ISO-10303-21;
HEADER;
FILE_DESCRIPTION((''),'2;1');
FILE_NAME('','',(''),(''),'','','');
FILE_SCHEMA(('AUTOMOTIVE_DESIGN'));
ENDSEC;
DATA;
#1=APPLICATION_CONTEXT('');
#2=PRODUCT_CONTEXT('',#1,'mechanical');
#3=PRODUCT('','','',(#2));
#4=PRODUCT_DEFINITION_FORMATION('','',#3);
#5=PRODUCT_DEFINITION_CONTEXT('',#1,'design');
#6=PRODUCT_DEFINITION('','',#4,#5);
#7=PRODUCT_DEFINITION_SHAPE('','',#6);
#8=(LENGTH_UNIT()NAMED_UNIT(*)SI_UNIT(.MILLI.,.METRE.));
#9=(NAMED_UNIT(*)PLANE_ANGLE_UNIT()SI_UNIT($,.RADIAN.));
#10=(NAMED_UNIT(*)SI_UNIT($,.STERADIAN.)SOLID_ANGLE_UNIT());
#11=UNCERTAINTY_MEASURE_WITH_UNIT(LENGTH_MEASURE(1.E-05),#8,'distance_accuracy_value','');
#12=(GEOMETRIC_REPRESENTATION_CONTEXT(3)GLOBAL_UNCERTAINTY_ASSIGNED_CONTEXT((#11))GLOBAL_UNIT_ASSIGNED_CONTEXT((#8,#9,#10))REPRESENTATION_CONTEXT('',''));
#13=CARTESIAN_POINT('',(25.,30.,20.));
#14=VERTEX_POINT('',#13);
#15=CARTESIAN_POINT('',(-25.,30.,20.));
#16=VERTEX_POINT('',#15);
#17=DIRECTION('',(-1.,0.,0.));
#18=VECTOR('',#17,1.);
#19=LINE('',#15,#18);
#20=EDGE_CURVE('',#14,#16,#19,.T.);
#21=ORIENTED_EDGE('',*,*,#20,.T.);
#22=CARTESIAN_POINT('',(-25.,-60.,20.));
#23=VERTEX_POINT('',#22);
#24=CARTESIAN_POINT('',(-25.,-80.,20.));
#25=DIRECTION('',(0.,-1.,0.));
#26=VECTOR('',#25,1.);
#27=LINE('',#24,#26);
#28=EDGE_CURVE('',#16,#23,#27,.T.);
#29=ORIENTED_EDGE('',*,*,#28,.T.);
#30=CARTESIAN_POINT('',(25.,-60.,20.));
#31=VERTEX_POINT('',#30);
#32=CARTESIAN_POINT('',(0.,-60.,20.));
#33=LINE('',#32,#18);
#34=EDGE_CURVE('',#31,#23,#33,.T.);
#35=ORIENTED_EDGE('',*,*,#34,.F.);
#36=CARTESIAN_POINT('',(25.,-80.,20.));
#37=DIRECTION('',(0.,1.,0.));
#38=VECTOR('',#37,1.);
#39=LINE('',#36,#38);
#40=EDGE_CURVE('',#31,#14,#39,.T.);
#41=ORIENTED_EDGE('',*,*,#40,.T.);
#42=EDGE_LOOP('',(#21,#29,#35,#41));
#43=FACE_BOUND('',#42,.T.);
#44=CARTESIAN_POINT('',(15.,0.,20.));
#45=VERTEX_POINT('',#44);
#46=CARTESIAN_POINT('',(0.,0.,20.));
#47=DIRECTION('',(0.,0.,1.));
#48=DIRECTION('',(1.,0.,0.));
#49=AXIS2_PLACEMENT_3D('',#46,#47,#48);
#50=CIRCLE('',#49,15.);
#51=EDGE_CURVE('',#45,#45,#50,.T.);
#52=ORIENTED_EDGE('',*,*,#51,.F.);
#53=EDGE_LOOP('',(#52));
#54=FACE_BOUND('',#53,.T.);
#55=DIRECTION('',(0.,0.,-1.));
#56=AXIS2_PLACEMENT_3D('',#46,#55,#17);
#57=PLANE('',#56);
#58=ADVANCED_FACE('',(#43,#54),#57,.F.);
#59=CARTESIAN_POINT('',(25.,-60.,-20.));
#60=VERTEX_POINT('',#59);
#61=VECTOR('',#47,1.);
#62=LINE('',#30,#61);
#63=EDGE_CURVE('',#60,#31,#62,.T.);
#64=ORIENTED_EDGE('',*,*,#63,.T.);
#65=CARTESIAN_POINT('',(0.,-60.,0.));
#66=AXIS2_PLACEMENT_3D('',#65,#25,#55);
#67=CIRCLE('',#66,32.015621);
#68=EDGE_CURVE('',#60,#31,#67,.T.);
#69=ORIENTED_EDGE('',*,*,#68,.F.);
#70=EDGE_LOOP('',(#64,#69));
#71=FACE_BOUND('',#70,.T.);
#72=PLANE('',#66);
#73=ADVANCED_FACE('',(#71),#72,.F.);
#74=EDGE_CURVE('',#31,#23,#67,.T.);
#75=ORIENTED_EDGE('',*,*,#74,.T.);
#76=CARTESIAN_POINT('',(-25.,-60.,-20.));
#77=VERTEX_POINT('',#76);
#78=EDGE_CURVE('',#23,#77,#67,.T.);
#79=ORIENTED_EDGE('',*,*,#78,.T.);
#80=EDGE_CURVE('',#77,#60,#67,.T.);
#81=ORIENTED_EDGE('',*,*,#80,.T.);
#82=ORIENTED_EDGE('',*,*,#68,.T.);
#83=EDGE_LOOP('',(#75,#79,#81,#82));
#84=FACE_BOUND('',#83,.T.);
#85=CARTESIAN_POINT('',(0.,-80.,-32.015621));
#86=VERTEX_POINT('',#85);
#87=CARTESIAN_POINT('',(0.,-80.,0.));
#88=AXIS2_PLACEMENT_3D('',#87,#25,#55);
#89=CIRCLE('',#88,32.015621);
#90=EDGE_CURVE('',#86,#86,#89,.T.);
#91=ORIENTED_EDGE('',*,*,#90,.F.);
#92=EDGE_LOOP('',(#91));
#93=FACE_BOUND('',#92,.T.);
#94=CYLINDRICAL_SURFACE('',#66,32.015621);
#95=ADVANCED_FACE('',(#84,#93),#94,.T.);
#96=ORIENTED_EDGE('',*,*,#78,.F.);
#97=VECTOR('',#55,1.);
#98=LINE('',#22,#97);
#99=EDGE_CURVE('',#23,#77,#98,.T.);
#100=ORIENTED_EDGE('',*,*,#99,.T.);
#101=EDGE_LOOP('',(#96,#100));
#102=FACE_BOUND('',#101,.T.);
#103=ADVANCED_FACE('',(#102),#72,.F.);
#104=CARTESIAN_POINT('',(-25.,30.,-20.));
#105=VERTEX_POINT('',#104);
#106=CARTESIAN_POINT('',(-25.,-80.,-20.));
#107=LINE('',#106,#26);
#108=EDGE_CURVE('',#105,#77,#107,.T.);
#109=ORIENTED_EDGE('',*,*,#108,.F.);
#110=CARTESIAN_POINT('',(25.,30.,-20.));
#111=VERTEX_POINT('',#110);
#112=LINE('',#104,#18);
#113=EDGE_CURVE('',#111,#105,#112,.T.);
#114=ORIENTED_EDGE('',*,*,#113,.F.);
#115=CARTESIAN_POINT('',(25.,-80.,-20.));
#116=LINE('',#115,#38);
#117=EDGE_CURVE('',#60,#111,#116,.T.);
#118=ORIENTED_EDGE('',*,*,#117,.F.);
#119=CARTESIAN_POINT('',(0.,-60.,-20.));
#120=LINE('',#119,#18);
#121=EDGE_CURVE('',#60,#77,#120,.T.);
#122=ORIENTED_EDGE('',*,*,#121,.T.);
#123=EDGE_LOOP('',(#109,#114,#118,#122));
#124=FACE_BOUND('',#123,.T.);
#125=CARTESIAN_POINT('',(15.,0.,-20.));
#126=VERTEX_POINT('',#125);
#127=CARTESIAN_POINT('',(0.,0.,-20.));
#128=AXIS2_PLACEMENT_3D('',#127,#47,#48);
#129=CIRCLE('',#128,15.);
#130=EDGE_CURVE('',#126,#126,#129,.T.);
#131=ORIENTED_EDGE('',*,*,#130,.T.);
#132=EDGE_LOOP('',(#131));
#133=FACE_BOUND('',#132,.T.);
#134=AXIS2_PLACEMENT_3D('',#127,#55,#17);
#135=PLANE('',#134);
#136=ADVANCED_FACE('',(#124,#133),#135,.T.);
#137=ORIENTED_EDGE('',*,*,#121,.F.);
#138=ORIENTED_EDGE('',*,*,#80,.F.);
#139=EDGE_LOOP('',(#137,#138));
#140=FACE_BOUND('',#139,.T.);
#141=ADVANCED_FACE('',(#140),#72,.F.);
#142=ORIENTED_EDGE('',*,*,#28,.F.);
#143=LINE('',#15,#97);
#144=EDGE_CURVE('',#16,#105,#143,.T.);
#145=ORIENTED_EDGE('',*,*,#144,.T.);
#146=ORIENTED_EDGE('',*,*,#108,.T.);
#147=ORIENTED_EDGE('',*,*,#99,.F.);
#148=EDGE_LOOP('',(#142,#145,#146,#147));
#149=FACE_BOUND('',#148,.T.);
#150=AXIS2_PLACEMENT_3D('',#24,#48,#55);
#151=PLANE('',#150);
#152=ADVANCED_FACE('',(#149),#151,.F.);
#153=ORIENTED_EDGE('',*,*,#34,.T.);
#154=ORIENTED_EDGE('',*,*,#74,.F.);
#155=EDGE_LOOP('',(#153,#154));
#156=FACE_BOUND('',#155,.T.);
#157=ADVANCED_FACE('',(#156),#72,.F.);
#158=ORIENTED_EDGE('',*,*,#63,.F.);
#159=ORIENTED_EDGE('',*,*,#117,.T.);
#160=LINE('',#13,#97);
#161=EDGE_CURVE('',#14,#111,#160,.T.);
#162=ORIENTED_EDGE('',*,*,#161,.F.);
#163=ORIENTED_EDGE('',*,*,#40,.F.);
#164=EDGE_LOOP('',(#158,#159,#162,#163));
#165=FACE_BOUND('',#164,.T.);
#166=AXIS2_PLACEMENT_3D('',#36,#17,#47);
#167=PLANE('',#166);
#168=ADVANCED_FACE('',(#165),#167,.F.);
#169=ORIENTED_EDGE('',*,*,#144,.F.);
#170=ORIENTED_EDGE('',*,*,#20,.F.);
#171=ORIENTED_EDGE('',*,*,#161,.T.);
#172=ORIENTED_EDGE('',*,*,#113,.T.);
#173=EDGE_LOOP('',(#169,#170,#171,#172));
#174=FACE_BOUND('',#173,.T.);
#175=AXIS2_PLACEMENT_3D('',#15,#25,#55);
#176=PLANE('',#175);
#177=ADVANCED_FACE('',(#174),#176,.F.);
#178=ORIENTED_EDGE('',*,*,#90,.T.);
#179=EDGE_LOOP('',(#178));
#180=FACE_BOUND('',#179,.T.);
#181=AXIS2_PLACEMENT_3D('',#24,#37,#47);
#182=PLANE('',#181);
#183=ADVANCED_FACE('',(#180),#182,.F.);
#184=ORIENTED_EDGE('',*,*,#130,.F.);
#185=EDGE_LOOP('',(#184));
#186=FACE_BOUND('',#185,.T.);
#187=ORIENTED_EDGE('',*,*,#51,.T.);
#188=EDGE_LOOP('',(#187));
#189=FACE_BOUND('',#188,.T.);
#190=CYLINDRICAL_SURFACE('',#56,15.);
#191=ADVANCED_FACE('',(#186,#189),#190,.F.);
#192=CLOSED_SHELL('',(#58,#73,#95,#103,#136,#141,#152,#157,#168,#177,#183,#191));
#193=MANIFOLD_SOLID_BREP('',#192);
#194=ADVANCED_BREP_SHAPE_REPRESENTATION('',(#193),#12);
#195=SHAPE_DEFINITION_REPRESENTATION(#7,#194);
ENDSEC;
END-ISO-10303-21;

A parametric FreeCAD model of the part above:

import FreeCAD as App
import Part
import Sketcher

V = App.Vector


def add_polygon(sketch, points):
    """Adds a closed chain of lines whose ends are joined by coincident constraints."""
    first, n = sketch.GeometryCount, len(points)
    for a, b in zip(points, points[1:] + points[:1]):
        sketch.addGeometry(Part.LineSegment(App.Vector(*a, 0), App.Vector(*b, 0)), False)
    for i in range(n):
        sketch.addConstraint(Sketcher.Constraint("Coincident", first + i, 2, first + (i + 1) % n, 1))

doc = App.newDocument("Part")
body = doc.addObject("PartDesign::Body", "Body")

sketch1 = body.newObject("Sketcher::SketchObject", "Sketch")
sketch1.AttachmentSupport = (doc.getObject("XY_Plane"), [""])
sketch1.MapMode = "FlatFace"
add_polygon(sketch1, [(-25, 30), (-25, -80), (25, -80), (25, 30)])
sketch1.addGeometry(Part.Circle(V(0, 0, 0), V(0, 0, 1), 15), False)
sketch1.addConstraint([
    Sketcher.Constraint("Vertical", 0),
    Sketcher.Constraint("Horizontal", 1),
    Sketcher.Constraint("Vertical", 2),
    Sketcher.Constraint("Horizontal", 3),
    Sketcher.Constraint("Coincident", 4, 3, -1, 1),
    Sketcher.Constraint("Diameter", 4, 30.0),
    Sketcher.Constraint("DistanceX", 1, 1, 1, 2, 50.0),
    Sketcher.Constraint("DistanceY", 0, 2, 0, 1, 110.0),
    Sketcher.Constraint("DistanceX", 0, 2, -1, 1, 25.0),
    Sketcher.Constraint("DistanceY", 0, 2, -1, 1, 80.0),
])
pad1 = body.newObject("PartDesign::Pad", "Pad")
pad1.Profile = sketch1
pad1.Length = 40
pad1.Midplane = True

sketch2 = body.newObject("Sketcher::SketchObject", "Sketch001")
sketch2.AttachmentSupport = (doc.getObject("XZ_Plane"), [""])
sketch2.MapMode = "FlatFace"
sketch2.AttachmentOffset = App.Placement(V(0, 0, 80), App.Rotation())
sketch2.addGeometry(Part.Circle(V(0, 0, 0), V(0, 0, 1), 32), False)
sketch2.addConstraint([
    Sketcher.Constraint("Coincident", 0, 3, -1, 1),
    Sketcher.Constraint("Diameter", 0, 64.031242),
])
pad2 = body.newObject("PartDesign::Pad", "Pad001")
pad2.Profile = sketch2
pad2.Length = 20
pad2.Reversed = True

doc.recompute()
